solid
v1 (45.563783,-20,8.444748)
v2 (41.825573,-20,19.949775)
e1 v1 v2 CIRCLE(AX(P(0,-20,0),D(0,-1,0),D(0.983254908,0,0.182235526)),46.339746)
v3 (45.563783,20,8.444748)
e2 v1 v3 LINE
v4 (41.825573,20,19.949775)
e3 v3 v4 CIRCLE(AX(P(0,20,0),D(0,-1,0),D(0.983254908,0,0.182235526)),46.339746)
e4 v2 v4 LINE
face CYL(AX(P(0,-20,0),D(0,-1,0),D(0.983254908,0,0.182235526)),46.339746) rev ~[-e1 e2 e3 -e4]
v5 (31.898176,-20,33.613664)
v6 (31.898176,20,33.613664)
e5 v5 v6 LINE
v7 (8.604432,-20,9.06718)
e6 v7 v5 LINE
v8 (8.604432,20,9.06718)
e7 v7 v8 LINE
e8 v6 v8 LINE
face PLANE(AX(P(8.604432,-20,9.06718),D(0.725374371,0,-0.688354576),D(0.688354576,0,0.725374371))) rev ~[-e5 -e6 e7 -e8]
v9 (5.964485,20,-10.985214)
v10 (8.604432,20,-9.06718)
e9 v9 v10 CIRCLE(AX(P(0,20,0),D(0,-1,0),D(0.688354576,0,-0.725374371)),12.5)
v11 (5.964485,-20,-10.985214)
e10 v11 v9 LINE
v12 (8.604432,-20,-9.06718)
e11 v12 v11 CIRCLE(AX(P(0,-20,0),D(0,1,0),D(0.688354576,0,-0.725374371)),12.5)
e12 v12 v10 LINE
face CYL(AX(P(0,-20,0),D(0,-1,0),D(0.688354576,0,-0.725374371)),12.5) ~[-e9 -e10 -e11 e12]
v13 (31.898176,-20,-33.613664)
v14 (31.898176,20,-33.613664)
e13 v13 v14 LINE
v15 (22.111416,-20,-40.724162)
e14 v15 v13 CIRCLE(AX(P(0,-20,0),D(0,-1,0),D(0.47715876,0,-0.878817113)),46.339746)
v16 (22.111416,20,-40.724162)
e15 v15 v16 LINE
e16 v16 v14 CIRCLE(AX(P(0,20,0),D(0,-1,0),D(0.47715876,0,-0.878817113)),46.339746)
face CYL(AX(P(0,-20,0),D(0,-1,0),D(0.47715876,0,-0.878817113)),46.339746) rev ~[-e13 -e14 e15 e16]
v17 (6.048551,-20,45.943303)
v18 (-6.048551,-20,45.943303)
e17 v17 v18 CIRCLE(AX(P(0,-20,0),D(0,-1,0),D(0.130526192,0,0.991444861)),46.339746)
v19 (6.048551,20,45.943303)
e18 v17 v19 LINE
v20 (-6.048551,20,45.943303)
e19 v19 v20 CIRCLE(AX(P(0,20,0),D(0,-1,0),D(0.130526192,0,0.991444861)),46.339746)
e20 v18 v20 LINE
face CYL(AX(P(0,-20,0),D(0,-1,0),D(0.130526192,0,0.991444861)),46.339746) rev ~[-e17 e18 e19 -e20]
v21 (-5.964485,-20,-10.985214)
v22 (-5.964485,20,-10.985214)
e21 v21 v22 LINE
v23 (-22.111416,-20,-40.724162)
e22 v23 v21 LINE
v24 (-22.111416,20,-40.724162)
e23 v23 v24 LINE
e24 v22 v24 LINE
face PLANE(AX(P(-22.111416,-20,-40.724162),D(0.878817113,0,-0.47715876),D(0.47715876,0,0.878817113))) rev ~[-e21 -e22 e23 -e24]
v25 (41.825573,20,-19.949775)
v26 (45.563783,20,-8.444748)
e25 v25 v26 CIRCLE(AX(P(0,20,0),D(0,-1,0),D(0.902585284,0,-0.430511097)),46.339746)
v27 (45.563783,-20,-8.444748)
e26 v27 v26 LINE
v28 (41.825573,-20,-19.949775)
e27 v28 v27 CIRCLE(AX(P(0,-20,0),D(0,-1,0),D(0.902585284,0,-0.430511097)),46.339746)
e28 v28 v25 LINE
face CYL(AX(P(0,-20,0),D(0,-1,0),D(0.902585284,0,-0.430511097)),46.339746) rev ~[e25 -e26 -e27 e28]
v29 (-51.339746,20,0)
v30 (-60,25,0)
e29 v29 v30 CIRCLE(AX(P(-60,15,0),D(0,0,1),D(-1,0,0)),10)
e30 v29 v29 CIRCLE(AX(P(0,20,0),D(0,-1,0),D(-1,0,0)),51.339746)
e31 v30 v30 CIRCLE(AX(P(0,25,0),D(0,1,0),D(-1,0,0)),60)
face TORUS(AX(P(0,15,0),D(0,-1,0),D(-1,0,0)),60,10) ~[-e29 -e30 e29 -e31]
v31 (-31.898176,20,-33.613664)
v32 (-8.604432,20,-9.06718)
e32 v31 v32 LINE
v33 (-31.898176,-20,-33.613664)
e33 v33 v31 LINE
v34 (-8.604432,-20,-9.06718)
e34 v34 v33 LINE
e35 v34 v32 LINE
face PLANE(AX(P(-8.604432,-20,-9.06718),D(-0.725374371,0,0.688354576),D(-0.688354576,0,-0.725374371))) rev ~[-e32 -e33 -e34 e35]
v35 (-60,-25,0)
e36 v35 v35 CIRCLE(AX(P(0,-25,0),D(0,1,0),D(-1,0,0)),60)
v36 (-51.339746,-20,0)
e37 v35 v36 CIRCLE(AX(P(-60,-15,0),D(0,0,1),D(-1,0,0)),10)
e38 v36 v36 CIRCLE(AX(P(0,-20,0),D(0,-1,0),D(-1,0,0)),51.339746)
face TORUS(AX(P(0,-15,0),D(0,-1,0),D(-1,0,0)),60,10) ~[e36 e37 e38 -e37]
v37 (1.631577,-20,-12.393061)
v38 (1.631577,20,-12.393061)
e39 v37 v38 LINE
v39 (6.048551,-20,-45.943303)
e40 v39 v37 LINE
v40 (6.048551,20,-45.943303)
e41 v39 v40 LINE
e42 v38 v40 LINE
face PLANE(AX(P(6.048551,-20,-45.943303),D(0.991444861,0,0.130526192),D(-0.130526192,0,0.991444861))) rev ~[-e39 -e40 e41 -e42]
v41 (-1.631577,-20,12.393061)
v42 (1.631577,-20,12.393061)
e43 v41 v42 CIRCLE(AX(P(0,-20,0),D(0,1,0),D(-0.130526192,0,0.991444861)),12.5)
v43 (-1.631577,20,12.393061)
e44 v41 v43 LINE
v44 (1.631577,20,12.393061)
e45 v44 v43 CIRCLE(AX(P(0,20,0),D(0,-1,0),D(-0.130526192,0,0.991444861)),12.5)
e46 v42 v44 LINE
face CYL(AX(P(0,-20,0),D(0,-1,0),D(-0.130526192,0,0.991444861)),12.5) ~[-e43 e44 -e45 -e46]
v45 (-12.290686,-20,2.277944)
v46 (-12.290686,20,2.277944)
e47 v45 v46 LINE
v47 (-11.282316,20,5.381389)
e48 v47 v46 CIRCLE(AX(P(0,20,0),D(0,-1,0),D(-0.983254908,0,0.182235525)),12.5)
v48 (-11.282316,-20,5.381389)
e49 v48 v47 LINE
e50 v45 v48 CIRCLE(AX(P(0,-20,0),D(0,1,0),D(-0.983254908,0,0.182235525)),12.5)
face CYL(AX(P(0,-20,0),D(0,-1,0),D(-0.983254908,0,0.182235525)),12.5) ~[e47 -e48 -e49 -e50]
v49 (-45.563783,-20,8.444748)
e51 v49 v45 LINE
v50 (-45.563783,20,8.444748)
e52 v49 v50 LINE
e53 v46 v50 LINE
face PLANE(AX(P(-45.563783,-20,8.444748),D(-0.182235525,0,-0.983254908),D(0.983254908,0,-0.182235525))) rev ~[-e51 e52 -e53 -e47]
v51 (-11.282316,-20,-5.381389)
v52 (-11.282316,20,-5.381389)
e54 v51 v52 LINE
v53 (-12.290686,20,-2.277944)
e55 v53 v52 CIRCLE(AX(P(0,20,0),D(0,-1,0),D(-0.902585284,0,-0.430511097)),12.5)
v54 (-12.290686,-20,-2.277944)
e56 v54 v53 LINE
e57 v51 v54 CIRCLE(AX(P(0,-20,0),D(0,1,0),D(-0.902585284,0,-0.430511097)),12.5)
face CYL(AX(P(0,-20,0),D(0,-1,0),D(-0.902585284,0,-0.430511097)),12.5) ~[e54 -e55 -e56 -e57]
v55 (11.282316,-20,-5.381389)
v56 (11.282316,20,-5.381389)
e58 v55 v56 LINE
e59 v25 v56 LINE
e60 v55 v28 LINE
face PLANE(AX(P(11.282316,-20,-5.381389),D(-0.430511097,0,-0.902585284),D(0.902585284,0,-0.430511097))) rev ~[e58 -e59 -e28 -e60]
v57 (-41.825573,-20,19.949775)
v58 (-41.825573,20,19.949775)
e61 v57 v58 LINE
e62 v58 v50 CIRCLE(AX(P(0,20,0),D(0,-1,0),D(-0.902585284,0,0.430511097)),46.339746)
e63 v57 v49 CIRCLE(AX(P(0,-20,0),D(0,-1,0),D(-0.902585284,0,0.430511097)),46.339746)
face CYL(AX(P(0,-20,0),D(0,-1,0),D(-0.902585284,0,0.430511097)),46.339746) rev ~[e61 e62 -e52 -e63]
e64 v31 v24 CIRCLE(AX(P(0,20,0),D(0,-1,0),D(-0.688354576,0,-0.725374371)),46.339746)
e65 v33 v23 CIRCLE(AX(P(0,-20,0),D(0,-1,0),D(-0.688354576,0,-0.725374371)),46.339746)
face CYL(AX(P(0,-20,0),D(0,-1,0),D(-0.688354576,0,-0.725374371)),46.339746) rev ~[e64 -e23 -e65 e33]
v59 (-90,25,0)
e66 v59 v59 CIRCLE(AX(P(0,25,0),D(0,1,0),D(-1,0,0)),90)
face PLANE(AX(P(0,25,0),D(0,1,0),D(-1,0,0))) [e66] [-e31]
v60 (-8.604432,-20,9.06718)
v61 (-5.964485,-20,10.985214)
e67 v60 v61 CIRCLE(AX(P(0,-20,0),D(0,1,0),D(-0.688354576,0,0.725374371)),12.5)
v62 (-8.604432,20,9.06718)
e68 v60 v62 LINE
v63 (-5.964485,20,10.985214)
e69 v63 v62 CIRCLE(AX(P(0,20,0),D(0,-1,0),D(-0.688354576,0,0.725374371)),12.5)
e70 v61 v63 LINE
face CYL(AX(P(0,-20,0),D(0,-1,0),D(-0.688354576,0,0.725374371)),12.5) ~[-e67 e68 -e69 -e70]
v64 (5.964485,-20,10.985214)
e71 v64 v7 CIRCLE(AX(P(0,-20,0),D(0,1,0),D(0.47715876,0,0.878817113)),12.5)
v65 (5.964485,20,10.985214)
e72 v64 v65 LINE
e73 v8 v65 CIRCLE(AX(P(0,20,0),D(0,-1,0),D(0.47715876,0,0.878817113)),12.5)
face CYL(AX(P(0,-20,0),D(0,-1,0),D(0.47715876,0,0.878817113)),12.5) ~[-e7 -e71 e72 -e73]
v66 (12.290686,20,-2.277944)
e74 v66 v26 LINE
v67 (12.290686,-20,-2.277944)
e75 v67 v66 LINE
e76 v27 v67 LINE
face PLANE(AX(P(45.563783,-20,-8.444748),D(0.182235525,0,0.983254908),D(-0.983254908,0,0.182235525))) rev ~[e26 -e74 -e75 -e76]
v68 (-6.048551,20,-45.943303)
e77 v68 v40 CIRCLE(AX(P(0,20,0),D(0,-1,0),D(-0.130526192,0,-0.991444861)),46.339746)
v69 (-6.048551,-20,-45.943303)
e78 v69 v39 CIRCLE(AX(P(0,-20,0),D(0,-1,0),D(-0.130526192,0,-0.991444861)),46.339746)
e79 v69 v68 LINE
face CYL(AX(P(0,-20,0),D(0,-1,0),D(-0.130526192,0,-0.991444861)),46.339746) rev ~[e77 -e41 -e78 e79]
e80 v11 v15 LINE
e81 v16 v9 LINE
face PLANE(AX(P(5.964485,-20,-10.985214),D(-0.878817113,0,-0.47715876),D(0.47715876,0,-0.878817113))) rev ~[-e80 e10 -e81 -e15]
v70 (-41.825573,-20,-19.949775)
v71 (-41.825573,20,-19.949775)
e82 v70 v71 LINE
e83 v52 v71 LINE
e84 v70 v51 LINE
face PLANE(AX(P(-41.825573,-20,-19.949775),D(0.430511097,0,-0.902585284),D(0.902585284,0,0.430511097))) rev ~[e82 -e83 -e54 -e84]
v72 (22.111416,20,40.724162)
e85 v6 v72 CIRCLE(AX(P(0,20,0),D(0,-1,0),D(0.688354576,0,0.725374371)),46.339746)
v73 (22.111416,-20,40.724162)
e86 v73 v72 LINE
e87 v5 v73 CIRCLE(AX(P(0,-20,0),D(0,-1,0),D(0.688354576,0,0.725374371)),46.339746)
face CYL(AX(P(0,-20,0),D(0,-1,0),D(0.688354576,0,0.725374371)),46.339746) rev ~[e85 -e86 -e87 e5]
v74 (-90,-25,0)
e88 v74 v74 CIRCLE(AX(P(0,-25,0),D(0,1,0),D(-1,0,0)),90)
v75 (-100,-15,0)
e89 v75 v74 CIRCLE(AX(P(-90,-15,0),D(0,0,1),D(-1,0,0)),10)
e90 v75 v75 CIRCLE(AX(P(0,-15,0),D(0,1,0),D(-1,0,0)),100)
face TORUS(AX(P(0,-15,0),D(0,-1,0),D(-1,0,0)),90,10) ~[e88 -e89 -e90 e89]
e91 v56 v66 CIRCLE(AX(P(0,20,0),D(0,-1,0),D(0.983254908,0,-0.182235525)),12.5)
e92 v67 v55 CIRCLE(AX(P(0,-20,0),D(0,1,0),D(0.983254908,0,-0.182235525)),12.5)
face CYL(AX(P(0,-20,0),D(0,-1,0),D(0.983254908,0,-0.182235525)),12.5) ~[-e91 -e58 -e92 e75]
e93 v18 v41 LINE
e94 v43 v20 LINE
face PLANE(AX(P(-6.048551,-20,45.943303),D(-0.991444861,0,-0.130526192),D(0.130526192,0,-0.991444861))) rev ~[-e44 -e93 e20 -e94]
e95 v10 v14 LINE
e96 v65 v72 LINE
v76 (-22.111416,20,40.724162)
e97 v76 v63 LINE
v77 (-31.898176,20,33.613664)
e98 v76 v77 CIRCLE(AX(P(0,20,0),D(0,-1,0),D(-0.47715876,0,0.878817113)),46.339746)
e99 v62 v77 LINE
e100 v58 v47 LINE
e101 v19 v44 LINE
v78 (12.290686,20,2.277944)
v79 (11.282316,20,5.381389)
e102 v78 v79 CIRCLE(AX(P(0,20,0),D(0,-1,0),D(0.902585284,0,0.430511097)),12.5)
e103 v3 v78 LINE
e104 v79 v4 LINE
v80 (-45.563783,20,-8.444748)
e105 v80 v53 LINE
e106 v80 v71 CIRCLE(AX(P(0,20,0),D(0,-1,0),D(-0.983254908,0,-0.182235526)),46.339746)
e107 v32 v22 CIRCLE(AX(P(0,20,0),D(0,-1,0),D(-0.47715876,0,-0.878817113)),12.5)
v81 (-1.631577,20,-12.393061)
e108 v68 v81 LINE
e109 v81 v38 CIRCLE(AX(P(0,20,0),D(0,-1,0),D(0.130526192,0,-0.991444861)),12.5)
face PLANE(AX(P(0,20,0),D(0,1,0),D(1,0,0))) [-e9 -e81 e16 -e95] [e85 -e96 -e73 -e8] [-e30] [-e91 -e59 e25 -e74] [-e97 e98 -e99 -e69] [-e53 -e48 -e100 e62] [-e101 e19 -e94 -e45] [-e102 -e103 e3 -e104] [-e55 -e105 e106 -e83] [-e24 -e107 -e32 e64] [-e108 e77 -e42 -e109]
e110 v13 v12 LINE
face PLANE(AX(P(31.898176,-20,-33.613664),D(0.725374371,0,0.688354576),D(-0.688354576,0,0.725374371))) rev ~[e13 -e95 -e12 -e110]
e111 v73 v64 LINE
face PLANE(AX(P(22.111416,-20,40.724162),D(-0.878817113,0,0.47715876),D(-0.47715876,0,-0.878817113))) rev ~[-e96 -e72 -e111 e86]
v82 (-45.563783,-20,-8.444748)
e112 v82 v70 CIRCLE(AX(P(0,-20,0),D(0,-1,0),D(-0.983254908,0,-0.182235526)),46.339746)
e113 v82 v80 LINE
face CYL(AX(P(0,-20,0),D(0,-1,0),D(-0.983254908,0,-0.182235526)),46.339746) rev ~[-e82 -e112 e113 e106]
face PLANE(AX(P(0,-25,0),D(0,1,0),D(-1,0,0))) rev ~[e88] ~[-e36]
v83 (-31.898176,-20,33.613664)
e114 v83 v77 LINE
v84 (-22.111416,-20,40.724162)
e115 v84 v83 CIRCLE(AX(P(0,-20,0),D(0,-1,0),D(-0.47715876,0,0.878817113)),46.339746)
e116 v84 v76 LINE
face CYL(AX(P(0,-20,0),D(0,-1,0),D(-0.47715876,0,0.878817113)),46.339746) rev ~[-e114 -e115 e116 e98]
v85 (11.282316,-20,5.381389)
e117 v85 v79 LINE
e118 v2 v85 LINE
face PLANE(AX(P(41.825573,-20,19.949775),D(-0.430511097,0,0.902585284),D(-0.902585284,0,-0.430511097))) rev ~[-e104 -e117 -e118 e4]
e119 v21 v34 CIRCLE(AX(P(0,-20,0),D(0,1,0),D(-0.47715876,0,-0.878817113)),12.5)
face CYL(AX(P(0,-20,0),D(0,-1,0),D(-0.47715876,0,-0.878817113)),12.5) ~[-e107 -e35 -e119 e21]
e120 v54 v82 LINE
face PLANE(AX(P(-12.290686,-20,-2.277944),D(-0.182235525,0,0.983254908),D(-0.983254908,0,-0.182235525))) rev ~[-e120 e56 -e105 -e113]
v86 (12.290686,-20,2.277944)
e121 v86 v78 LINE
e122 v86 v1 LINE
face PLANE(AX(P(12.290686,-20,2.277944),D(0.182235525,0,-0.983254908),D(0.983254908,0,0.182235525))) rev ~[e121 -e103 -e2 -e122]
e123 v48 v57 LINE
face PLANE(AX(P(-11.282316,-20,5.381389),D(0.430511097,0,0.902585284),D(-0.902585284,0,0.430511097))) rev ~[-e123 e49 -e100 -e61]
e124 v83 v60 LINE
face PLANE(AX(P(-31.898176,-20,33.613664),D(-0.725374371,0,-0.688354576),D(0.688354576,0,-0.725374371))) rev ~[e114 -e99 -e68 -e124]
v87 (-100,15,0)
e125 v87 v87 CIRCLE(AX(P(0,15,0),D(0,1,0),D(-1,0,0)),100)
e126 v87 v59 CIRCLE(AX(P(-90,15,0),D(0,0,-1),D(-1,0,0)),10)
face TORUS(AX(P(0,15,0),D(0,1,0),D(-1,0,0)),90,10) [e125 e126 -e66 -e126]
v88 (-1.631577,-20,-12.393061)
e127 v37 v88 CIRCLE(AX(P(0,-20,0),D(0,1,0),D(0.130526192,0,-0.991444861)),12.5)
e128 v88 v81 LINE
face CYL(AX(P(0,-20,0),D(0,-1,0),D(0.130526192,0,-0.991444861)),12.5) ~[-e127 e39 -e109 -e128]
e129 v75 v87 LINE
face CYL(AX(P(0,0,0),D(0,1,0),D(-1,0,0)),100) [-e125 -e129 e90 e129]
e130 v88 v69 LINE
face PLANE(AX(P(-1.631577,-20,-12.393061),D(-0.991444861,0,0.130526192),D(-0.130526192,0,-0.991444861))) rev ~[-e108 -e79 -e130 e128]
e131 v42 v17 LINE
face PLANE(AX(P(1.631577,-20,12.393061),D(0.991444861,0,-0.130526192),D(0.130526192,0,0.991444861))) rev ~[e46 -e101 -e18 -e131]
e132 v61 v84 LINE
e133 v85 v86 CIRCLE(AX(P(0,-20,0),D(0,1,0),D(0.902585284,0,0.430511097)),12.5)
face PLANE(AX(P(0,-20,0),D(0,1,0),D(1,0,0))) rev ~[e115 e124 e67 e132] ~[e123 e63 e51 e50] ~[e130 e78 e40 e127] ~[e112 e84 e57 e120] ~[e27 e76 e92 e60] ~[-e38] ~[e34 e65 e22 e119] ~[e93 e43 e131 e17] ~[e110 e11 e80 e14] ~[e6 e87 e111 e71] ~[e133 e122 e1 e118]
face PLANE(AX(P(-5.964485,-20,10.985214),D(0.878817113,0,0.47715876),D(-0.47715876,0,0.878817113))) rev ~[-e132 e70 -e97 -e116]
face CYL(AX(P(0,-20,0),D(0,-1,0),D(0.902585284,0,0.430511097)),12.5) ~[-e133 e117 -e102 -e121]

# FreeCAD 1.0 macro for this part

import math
import FreeCAD as App
import Part
import Sketcher
from FreeCAD import Vector
Q = App.Units.Quantity


def edges_at(feature, points):
    """Names of the edges that pass closest to the given points."""
    edges = feature.Shape.Edges
    near = lambda p: min(range(len(edges)), key=lambda i: edges[i].distToShape(Part.Vertex(*p))[0])
    return sorted({f"Edge{near(p) + 1}" for p in points})


def add_polygon(sketch, points):
    """Adds a closed chain of lines whose ends are joined by coincident constraints."""
    first, n = sketch.GeometryCount, len(points)
    for a, b in zip(points, points[1:] + points[:1]):
        sketch.addGeometry(Part.LineSegment(App.Vector(*a, 0), App.Vector(*b, 0)), False)
    for i in range(n):
        sketch.addConstraint(Sketcher.Constraint("Coincident", first + i, 2, first + (i + 1) % n, 1))

doc = App.newDocument("Part")
body = doc.addObject("PartDesign::Body", "Body")

sketch1 = doc.addObject("Sketcher::SketchObject", "Sketch")
body.addObject(sketch1)
sketch1.AttachmentSupport = (doc.XY_Plane, [""])
sketch1.MapMode = "FlatFace"
add_polygon(sketch1, [(-100, 25), (-100, -25), (-50, -25), (-50, 25)])
sketch1.addConstraint(Sketcher.Constraint("Vertical", 0))
sketch1.addConstraint(Sketcher.Constraint("Horizontal", 1))
sketch1.addConstraint(Sketcher.Constraint("Vertical", 2))
sketch1.addConstraint(Sketcher.Constraint("Horizontal", 3))
sketch1.addConstraint(Sketcher.Constraint("Equal", 3, 0))
sketch1.addConstraint(Sketcher.Constraint("DistanceX", 1, 1, 1, 2, 50.0))
sketch1.addConstraint(Sketcher.Constraint("DistanceX", 0, 2, -1, 1, 100.0))
sketch1.addConstraint(Sketcher.Constraint("DistanceY", 0, 2, -1, 1, 25.0))
revolution = doc.addObject("PartDesign::Revolution", "Revolution")
body.addObject(revolution)
revolution.Profile = sketch1
revolution.ReferenceAxis = (sketch1, ["V_Axis"])
revolution.Angle = 360
doc.recompute()

fillet = doc.addObject("PartDesign::Fillet", "Fillet")
body.addObject(fillet)
fillet.Base = (revolution, edges_at(revolution, [
    (50, 25, 0),
    (100, 25, 0),
    (100, -25, 0),
    (50, -25, 0),
]))
fillet.Radius = 10

sketch2 = doc.addObject("Sketcher::SketchObject", "Sketch001")
body.addObject(sketch2)
sketch2.AttachmentSupport = (doc.XZ_Plane, [""])
sketch2.MapMode = "FlatFace"
sketch2.addGeometry(Part.Circle(Vector(0, 0, 0), Vector(0, 0, 1), 60), False)
sketch2.addConstraint(Sketcher.Constraint("Coincident", 0, 3, -1, 1))
sketch2.addConstraint(Sketcher.Constraint("Diameter", 0, 120.0))
pad1 = doc.addObject("PartDesign::Pad", "Pad")
body.addObject(pad1)
pad1.Profile = sketch2
pad1.Type = "TwoLengths"
pad1.Length = 20
pad1.Length2 = 20
pad1.Reversed = True

sketch3 = doc.addObject("Sketcher::SketchObject", "Sketch002")
body.addObject(sketch3)
sketch3.AttachmentSupport = (doc.XZ_Plane, [""])
sketch3.MapMode = "FlatFace"
sketch3.AttachmentOffset = App.Placement(Vector(0, 0, 20), App.Rotation())
sketch3.addGeometry(Part.ArcOfCircle(Part.Circle(Vector(0, 0, 0), Vector(0, 0, 1), 12.5), math.radians(82.5), math.radians(97.5)), False)
sketch3.addGeometry(Part.LineSegment(Vector(1.6, 12.4, 0), Vector(6, 45.9, 0)), False)
sketch3.addGeometry(Part.ArcOfCircle(Part.Circle(Vector(0, 0, 0), Vector(0, 0, 1), 46.3), math.radians(82.5), math.radians(97.5)), False)
sketch3.addGeometry(Part.LineSegment(Vector(-6, 45.9, 0), Vector(-1.6, 12.4, 0)), False)
sketch3.addConstraint(Sketcher.Constraint("Coincident", 0, 1, 1, 1))
sketch3.addConstraint(Sketcher.Constraint("Coincident", 1, 2, 2, 1))
sketch3.addConstraint(Sketcher.Constraint("Coincident", 2, 2, 3, 1))
sketch3.addConstraint(Sketcher.Constraint("Coincident", 3, 2, 0, 2))
sketch3.addConstraint(Sketcher.Constraint("Coincident", 0, 3, -1, 1))
sketch3.addConstraint(Sketcher.Constraint("Coincident", 2, 3, -1, 1))
sketch3.addConstraint(Sketcher.Constraint("Horizontal", 1, 2, 2, 2))
sketch3.addConstraint(Sketcher.Constraint("Horizontal", 0, 1, 3, 2))
sketch3.addConstraint(Sketcher.Constraint("Radius", 0, 12.5))
sketch3.addConstraint(Sketcher.Constraint("Angle", 1, Q("82.5 deg")))
sketch3.addConstraint(Sketcher.Constraint("Radius", 2, 46.339746))
sketch3.addConstraint(Sketcher.Constraint("DistanceX", 2, 2, 1, 2, 12.097101))
pocket1 = doc.addObject("PartDesign::Pocket", "Pocket")
body.addObject(pocket1)
pocket1.Profile = sketch3
pocket1.Type = "ThroughAll"
doc.recompute()

polarpattern = doc.addObject("PartDesign::PolarPattern", "PolarPattern")
body.addObject(polarpattern)
polarpattern.Originals = [pocket1]
polarpattern.Axis = (doc.Y_Axis, [""])
polarpattern.Angle = 360
polarpattern.Occurrences = 10
body.Tip = polarpattern

doc.recompute()
